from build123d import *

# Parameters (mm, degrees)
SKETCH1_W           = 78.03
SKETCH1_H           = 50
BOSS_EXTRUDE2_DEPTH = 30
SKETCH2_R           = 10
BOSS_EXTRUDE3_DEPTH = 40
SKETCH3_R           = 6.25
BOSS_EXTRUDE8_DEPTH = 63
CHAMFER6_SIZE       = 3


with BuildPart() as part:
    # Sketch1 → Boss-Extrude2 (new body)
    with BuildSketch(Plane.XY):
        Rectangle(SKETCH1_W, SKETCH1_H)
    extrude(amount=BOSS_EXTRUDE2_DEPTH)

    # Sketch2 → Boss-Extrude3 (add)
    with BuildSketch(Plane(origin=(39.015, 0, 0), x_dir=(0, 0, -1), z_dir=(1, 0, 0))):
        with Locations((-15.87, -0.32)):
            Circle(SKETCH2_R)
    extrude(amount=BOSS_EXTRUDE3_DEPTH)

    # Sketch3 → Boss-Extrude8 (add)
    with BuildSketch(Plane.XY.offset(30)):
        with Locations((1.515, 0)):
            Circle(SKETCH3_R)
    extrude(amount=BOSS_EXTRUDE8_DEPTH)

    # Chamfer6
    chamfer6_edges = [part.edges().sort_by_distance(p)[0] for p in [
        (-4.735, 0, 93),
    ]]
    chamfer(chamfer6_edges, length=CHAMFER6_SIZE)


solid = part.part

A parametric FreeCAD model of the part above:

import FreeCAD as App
import Part
import Sketcher
from FreeCAD import Vector


def edges_at(feature, points):
    """Names of the edges that pass closest to the given points."""
    edges = feature.Shape.Edges
    near = lambda p: min(range(len(edges)), key=lambda i: edges[i].distToShape(Part.Vertex(*p))[0])
    return sorted({f"Edge{near(p) + 1}" for p in points})


def add_polygon(sketch, points):
    """Adds a closed chain of lines whose ends are joined by coincident constraints."""
    first, n = sketch.GeometryCount, len(points)
    for a, b in zip(points, points[1:] + points[:1]):
        sketch.addGeometry(Part.LineSegment(App.Vector(*a, 0), App.Vector(*b, 0)), False)
    for i in range(n):
        sketch.addConstraint(Sketcher.Constraint("Coincident", first + i, 2, first + (i + 1) % n, 1))

doc = App.newDocument("Part")
body = doc.addObject("PartDesign::Body", "Body")

# Sketch on XY plane
sketch1 = body.newObject("Sketcher::SketchObject", "Sketch")
sketch1.AttachmentSupport = (doc.getObject("XY_Plane"), [""])
sketch1.MapMode = "FlatFace"
add_polygon(sketch1, [(-39, 25), (-39, -25), (39, -25), (39, 25)])  # lines 0-3
sketch1.addConstraint(Sketcher.Constraint("Vertical", 0))
sketch1.addConstraint(Sketcher.Constraint("Horizontal", 1))
sketch1.addConstraint(Sketcher.Constraint("Vertical", 2))
sketch1.addConstraint(Sketcher.Constraint("Horizontal", 3))
sketch1.addConstraint(Sketcher.Constraint("Symmetric", 0, 2, 2, 2, -1, 1))
sketch1.addConstraint(Sketcher.Constraint("DistanceY", 0, 2, 0, 1, 50.0))
sketch1.addConstraint(Sketcher.Constraint("DistanceX", 1, 1, 1, 2, 78.03))
pad1 = body.newObject("PartDesign::Pad", "Pad")
pad1.Profile = sketch1
pad1.Length = 30

# Sketch on YZ plane
sketch2 = body.newObject("Sketcher::SketchObject", "Sketch001")
sketch2.AttachmentSupport = (doc.getObject("YZ_Plane"), [""])
sketch2.MapMode = "FlatFace"
sketch2.AttachmentOffset = App.Placement(Vector(0, 0, 39.015), App.Rotation())
sketch2.addGeometry(Part.Circle(Vector(0, 16, 0), Vector(0, 0, 1), 10), False)
sketch2.addConstraint(Sketcher.Constraint("Diameter", 0, 20.0))
sketch2.addConstraint(Sketcher.Constraint("DistanceX", 0, 3, -1, 1, 0.32))
sketch2.addConstraint(Sketcher.Constraint("DistanceY", -1, 1, 0, 3, 15.87))
pad2 = body.newObject("PartDesign::Pad", "Pad001")
pad2.Profile = sketch2
pad2.Length = 40

# Sketch on XY plane
sketch3 = body.newObject("Sketcher::SketchObject", "Sketch002")
sketch3.AttachmentSupport = (doc.getObject("XY_Plane"), [""])
sketch3.MapMode = "FlatFace"
sketch3.AttachmentOffset = App.Placement(Vector(0, 0, 30), App.Rotation())
sketch3.addGeometry(Part.Circle(Vector(2, 0, 0), Vector(0, 0, 1), 6), False)
sketch3.addConstraint(Sketcher.Constraint("PointOnObject", 0, 3, -1))
sketch3.addConstraint(Sketcher.Constraint("Diameter", 0, 12.5))
sketch3.addConstraint(Sketcher.Constraint("DistanceX", -1, 1, 0, 3, 1.515))
pad3 = body.newObject("PartDesign::Pad", "Pad002")
pad3.Profile = sketch3
pad3.Length = 63
doc.recompute()

chamfer = body.newObject("PartDesign::Chamfer", "Chamfer")
chamfer.Base = (pad3, edges_at(pad3, [(-4.735, 0, 93)]))
chamfer.Size = 3

doc.recompute()
